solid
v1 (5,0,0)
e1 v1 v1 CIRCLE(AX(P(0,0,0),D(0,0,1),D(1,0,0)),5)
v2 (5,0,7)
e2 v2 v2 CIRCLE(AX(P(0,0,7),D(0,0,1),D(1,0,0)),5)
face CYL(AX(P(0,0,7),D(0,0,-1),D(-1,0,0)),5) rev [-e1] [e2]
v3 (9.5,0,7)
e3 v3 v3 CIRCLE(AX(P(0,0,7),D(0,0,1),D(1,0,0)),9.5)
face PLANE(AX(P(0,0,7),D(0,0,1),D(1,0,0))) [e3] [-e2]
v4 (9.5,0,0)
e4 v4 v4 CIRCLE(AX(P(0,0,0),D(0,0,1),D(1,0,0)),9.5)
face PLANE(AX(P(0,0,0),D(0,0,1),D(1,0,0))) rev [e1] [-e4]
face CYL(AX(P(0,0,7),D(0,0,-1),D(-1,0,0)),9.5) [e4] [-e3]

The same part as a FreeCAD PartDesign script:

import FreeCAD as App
import Part
import Sketcher

V = App.Vector

doc = App.newDocument("Part")
body = doc.addObject("PartDesign::Body", "Body")

# Sketch on XY plane
sketch1 = body.newObject("Sketcher::SketchObject", "Sketch")
sketch1.AttachmentSupport = (doc.getObject("XY_Plane"), [""])
sketch1.MapMode = "FlatFace"
sketch1.addGeometry(Part.Circle(V(0, 0, 0), V(0, 0, 1), 10), False)
sketch1.addGeometry(Part.Circle(V(0, 0, 0), V(0, 0, 1), 5), False)
sketch1.addConstraint(Sketcher.Constraint("Coincident", 0, 3, -1, 1))
sketch1.addConstraint(Sketcher.Constraint("Coincident", 1, 3, -1, 1))
sketch1.addConstraint(Sketcher.Constraint("Diameter", 0, 19.0))
sketch1.addConstraint(Sketcher.Constraint("Diameter", 1, 10.0))
pad1 = body.newObject("PartDesign::Pad", "Pad")
pad1.Profile = sketch1
pad1.Length = 7

doc.recompute()
